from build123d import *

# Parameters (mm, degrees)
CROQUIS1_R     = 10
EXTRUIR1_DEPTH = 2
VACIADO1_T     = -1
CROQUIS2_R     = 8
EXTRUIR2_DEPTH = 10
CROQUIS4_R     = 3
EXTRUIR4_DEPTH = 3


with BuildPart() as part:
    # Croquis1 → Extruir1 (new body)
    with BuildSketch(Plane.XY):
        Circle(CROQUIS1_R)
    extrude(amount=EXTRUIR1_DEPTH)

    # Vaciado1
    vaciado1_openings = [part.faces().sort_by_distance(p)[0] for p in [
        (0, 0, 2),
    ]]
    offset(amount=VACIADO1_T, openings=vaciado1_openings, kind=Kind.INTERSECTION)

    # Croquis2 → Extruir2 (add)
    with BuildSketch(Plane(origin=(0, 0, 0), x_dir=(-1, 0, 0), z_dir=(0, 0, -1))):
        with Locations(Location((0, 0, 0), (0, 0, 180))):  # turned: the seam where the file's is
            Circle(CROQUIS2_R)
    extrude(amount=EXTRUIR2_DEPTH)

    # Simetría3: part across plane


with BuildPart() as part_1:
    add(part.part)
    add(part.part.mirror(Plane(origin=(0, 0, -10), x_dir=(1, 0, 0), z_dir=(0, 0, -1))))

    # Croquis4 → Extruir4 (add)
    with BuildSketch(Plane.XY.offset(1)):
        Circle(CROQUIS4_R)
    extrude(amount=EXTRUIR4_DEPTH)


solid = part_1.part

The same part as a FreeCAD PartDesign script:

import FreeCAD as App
import Part
import Sketcher


def faces_at(feature, points):
    """Names of the faces that lie closest to the given points."""
    faces = feature.Shape.Faces
    near = lambda p: min(range(len(faces)), key=lambda i: faces[i].distToShape(Part.Vertex(*p))[0])
    return sorted({f"Face{near(p) + 1}" for p in points})

doc = App.newDocument("Part")
body = doc.addObject("PartDesign::Body", "Body")

sketch1 = doc.addObject("Sketcher::SketchObject", "Sketch")
body.addObject(sketch1)
sketch1.AttachmentSupport = (doc.XY_Plane, [""])
sketch1.MapMode = "FlatFace"
sketch1.addGeometry(Part.Circle(App.Vector(0, 0, 0), App.Vector(0, 0, 1), 10), False)
sketch1.addConstraint([
    Sketcher.Constraint("Coincident", 0, 3, -1, 1),
    Sketcher.Constraint("Diameter", 0, 20.0),
])
pad1 = doc.addObject("PartDesign::Pad", "Pad")
body.addObject(pad1)
pad1.Profile = sketch1
pad1.Length = 2
doc.recompute()

thickness = doc.addObject("PartDesign::Thickness", "Thickness")
body.addObject(thickness)
thickness.Base = (pad1, faces_at(pad1, [(0, 0, 2)]))
thickness.Value = 1
thickness.Reversed = True
thickness.Join = "Intersection"

sketch2 = doc.addObject("Sketcher::SketchObject", "Sketch001")
body.addObject(sketch2)
sketch2.AttachmentSupport = (doc.XY_Plane, [""])
sketch2.MapMode = "FlatFace"
sketch2.addGeometry(Part.Circle(App.Vector(0, 0, 0), App.Vector(0, 0, 1), 8), False)
sketch2.addConstraint([
    Sketcher.Constraint("Coincident", 0, 3, -1, 1),
    Sketcher.Constraint("Diameter", 0, 16.0),
])
pad2 = doc.addObject("PartDesign::Pad", "Pad001")
body.addObject(pad2)
pad2.Profile = sketch2
pad2.Length = 10
pad2.Reversed = True
body2 = doc.addObject("PartDesign::Body", "Body001")
doc.recompute()

body2.BaseFeature = body
doc.recompute()

mirroring = doc.addObject("Part::Mirroring", "Mirroring")
mirroring.Source = body
mirroring.Base = App.Vector(0, 0, -10)
mirroring.Normal = App.Vector(0, 0, -1)
body3 = doc.addObject("PartDesign::Body", "Body002")
body3.BaseFeature = mirroring
boolean = doc.addObject("PartDesign::Boolean", "Boolean")
body2.addObject(boolean)
boolean.Type = "Fuse"
boolean.addObjects([body3])
doc.recompute()

sketch3 = doc.addObject("Sketcher::SketchObject", "Sketch002")
body2.addObject(sketch3)
sketch3.AttachmentSupport = (doc.getObject("XY_Plane001"), [""])
sketch3.MapMode = "FlatFace"
sketch3.AttachmentOffset = App.Placement(App.Vector(0, 0, 1), App.Rotation())
sketch3.addGeometry(Part.Circle(App.Vector(0, 0, 0), App.Vector(0, 0, 1), 3), False)
sketch3.addConstraint([
    Sketcher.Constraint("Coincident", 0, 3, -1, 1),
    Sketcher.Constraint("Diameter", 0, 6.0),
])
pad3 = doc.addObject("PartDesign::Pad", "Pad002")
body2.addObject(pad3)
pad3.Profile = sketch3
pad3.Length = 3
mirroring.Visibility = False

doc.recompute()
